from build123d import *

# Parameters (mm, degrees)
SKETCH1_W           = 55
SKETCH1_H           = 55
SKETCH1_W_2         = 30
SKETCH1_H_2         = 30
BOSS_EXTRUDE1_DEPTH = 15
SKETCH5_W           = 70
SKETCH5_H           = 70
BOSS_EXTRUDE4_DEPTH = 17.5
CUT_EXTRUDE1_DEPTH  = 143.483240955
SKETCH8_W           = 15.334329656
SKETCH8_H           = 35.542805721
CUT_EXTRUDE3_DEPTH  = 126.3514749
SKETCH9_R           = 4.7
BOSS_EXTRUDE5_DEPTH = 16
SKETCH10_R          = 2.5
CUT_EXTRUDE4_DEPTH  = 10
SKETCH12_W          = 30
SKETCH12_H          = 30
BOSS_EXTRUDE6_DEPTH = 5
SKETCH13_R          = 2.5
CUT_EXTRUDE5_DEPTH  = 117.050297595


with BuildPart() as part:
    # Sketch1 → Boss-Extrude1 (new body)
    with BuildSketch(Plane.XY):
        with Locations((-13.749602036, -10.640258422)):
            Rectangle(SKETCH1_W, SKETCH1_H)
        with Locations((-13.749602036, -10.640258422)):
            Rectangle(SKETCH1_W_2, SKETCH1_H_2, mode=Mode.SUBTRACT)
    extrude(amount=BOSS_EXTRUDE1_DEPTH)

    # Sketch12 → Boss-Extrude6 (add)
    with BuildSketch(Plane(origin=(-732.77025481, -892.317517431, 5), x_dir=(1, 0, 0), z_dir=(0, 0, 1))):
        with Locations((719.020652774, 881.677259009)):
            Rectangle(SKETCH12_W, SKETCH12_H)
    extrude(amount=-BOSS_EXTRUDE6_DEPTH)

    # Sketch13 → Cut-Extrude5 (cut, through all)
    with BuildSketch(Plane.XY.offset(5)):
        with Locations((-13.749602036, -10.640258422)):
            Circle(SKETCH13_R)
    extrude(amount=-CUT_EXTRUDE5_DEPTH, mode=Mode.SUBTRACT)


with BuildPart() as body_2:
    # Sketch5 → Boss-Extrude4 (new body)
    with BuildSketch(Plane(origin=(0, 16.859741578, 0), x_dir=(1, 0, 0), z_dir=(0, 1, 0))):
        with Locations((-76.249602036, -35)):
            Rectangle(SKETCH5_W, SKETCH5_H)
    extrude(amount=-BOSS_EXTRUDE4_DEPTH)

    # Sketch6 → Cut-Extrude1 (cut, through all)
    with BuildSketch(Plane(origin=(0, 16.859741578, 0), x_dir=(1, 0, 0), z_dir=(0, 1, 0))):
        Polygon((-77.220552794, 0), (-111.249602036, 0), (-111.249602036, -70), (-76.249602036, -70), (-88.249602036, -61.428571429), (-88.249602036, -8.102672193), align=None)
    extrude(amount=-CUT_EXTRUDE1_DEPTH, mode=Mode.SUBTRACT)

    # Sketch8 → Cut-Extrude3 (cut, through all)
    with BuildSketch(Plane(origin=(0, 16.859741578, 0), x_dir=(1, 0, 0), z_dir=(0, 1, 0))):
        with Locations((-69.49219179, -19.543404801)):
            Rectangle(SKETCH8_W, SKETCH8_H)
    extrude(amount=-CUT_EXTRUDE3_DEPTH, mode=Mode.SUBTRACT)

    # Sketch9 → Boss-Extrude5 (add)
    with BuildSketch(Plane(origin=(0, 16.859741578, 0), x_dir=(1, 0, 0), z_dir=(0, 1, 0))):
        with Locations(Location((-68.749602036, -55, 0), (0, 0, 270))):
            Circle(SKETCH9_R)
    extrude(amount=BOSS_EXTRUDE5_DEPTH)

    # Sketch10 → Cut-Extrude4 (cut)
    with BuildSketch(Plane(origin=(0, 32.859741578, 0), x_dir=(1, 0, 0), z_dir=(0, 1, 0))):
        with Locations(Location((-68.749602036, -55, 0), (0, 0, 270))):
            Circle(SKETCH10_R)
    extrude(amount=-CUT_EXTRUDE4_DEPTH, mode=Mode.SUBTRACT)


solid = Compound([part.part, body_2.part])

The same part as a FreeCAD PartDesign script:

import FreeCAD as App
import Part
import Sketcher
Q = App.Units.Quantity

doc = App.newDocument("Part")
body = doc.addObject("PartDesign::Body", "Body")

sketch1 = body.newObject("Sketcher::SketchObject", "Sketch")
sketch1.AttachmentSupport = (doc.getObject("XY_Plane"), [""])
sketch1.MapMode = "FlatFace"
sketch1.addGeometry([
    Part.LineSegment(App.Vector(-41, 17, 0), App.Vector(-41, -38, 0)),
    Part.LineSegment(App.Vector(-41, -38, 0), App.Vector(14, -38, 0)),
    Part.LineSegment(App.Vector(14, -38, 0), App.Vector(14, 17, 0)),
    Part.LineSegment(App.Vector(14, 17, 0), App.Vector(-41, 17, 0)),
    Part.LineSegment(App.Vector(1, -26, 0), App.Vector(-29, -26, 0)),
    Part.LineSegment(App.Vector(-29, -26, 0), App.Vector(-29, 4, 0)),
    Part.LineSegment(App.Vector(-29, 4, 0), App.Vector(1, 4, 0)),
    Part.LineSegment(App.Vector(1, 4, 0), App.Vector(1, -26, 0)),
], False)
sketch1.addConstraint([
    Sketcher.Constraint("Coincident", 0, 2, 1, 1),
    Sketcher.Constraint("Coincident", 1, 2, 2, 1),
    Sketcher.Constraint("Coincident", 2, 2, 3, 1),
    Sketcher.Constraint("Coincident", 3, 2, 0, 1),
    Sketcher.Constraint("Coincident", 4, 2, 5, 1),
    Sketcher.Constraint("Coincident", 5, 2, 6, 1),
    Sketcher.Constraint("Coincident", 6, 2, 7, 1),
    Sketcher.Constraint("Coincident", 7, 2, 4, 1),
    Sketcher.Constraint("Vertical", 0),
    Sketcher.Constraint("Horizontal", 1),
    Sketcher.Constraint("Vertical", 2),
    Sketcher.Constraint("Horizontal", 3),
    Sketcher.Constraint("Horizontal", 4),
    Sketcher.Constraint("Vertical", 5),
    Sketcher.Constraint("Horizontal", 6),
    Sketcher.Constraint("Vertical", 7),
    Sketcher.Constraint("Equal", 3, 0),
    Sketcher.Constraint("Equal", 6, 5),
    Sketcher.Constraint("DistanceX", 1, 1, 1, 2, Q("55 mm")),
    Sketcher.Constraint("DistanceX", 4, 2, 4, 1, Q("30 mm")),
    Sketcher.Constraint("DistanceX", 0, 2, 4, 2, Q("12.5 mm")),
    Sketcher.Constraint("DistanceY", 0, 2, 4, 2, Q("12.5 mm")),
    Sketcher.Constraint("DistanceY", 0, 2, -1, 1, Q("38.140258 mm")),
    Sketcher.Constraint("DistanceX", 0, 2, -1, 1, Q("41.249602 mm")),
])
pad1 = body.newObject("PartDesign::Pad", "Pad")
pad1.Profile = sketch1
pad1.Length = 15

sketch2 = body.newObject("Sketcher::SketchObject", "Sketch001")
sketch2.AttachmentSupport = (doc.getObject("XY_Plane"), [""])
sketch2.MapMode = "FlatFace"
sketch2.AttachmentOffset = App.Placement(App.Vector(0, 0, 5), App.Rotation())
sketch2.addGeometry([
    Part.LineSegment(App.Vector(-29, 4, 0), App.Vector(-29, -26, 0)),
    Part.LineSegment(App.Vector(-29, -26, 0), App.Vector(1, -26, 0)),
    Part.LineSegment(App.Vector(1, -26, 0), App.Vector(1, 4, 0)),
    Part.LineSegment(App.Vector(1, 4, 0), App.Vector(-29, 4, 0)),
], False)
sketch2.addConstraint([
    Sketcher.Constraint("Coincident", 0, 2, 1, 1),
    Sketcher.Constraint("Coincident", 1, 2, 2, 1),
    Sketcher.Constraint("Coincident", 2, 2, 3, 1),
    Sketcher.Constraint("Coincident", 3, 2, 0, 1),
    Sketcher.Constraint("Vertical", 0),
    Sketcher.Constraint("Horizontal", 1),
    Sketcher.Constraint("Vertical", 2),
    Sketcher.Constraint("Horizontal", 3),
    Sketcher.Constraint("Equal", 3, 0),
    Sketcher.Constraint("DistanceX", 1, 1, 1, 2, Q("30 mm")),
    Sketcher.Constraint("DistanceY", 0, 2, -1, 1, Q("25.640258 mm")),
    Sketcher.Constraint("DistanceX", 0, 2, -1, 1, Q("28.749602 mm")),
])
pad2 = body.newObject("PartDesign::Pad", "Pad001")
pad2.Profile = sketch2
pad2.Length = 5
pad2.Reversed = True

sketch3 = body.newObject("Sketcher::SketchObject", "Sketch002")
sketch3.AttachmentSupport = (doc.getObject("XY_Plane"), [""])
sketch3.MapMode = "FlatFace"
sketch3.AttachmentOffset = App.Placement(App.Vector(0, 0, 5), App.Rotation())
sketch3.addGeometry(Part.Circle(App.Vector(-13.7, -10.6, 0), App.Vector(0, 0, 1), 2.5), False)
sketch3.addConstraint([
    Sketcher.Constraint("Diameter", 0, Q("5 mm")),
    Sketcher.Constraint("DistanceY", 0, 3, -1, 1, Q("10.640258 mm")),
    Sketcher.Constraint("DistanceX", 0, 3, -1, 1, Q("13.749602 mm")),
])
pocket1 = body.newObject("PartDesign::Pocket", "Pocket")
pocket1.Profile = sketch3
pocket1.Type = "ThroughAll"
body2 = doc.addObject("PartDesign::Body", "Body001")

sketch4 = body2.newObject("Sketcher::SketchObject", "Sketch003")
sketch4.AttachmentSupport = (doc.getObject("XZ_Plane001"), [""])
sketch4.MapMode = "FlatFace"
sketch4.AttachmentOffset = App.Placement(App.Vector(0, 0, -16.859742), App.Rotation())
sketch4.addGeometry([
    Part.LineSegment(App.Vector(-111, 0, 0), App.Vector(-111, 70, 0)),
    Part.LineSegment(App.Vector(-111, 70, 0), App.Vector(-41, 70, 0)),
    Part.LineSegment(App.Vector(-41, 70, 0), App.Vector(-41, 0, 0)),
    Part.LineSegment(App.Vector(-41, 0, 0), App.Vector(-111, 0, 0)),
], False)
sketch4.addConstraint([
    Sketcher.Constraint("Coincident", 0, 2, 1, 1),
    Sketcher.Constraint("Coincident", 1, 2, 2, 1),
    Sketcher.Constraint("Coincident", 2, 2, 3, 1),
    Sketcher.Constraint("Coincident", 3, 2, 0, 1),
    Sketcher.Constraint("Vertical", 0),
    Sketcher.Constraint("Horizontal", 1),
    Sketcher.Constraint("Vertical", 2),
    Sketcher.Constraint("Horizontal", 3),
    Sketcher.Constraint("PointOnObject", 2, 2, -1),
    Sketcher.Constraint("Equal", 3, 0),
    Sketcher.Constraint("DistanceX", 1, 1, 1, 2, Q("70 mm")),
    Sketcher.Constraint("DistanceX", 0, 2, -1, 1, Q("111.249602 mm")),
])
pad3 = body2.newObject("PartDesign::Pad", "Pad002")
pad3.Profile = sketch4
pad3.Length = 17.5

sketch5 = body2.newObject("Sketcher::SketchObject", "Sketch004")
sketch5.AttachmentSupport = (doc.getObject("XZ_Plane001"), [""])
sketch5.MapMode = "FlatFace"
sketch5.AttachmentOffset = App.Placement(App.Vector(0, 0, -16.859742), App.Rotation())
sketch5.addGeometry([
    Part.LineSegment(App.Vector(-77, 0, 0), App.Vector(-111, 0, 0)),
    Part.LineSegment(App.Vector(-111, 0, 0), App.Vector(-111, 70, 0)),
    Part.LineSegment(App.Vector(-111, 70, 0), App.Vector(-76, 70, 0)),
    Part.LineSegment(App.Vector(-76, 70, 0), App.Vector(-88, 61, 0)),
    Part.LineSegment(App.Vector(-88, 61, 0), App.Vector(-88, 8, 0)),
    Part.LineSegment(App.Vector(-88, 8, 0), App.Vector(-77, 0, 0)),
], False)
sketch5.addConstraint([
    Sketcher.Constraint("Coincident", 0, 2, 1, 1),
    Sketcher.Constraint("Coincident", 1, 2, 2, 1),
    Sketcher.Constraint("Coincident", 2, 2, 3, 1),
    Sketcher.Constraint("Coincident", 3, 2, 4, 1),
    Sketcher.Constraint("Coincident", 4, 2, 5, 1),
    Sketcher.Constraint("Coincident", 5, 2, 0, 1),
    Sketcher.Constraint("Horizontal", 0),
    Sketcher.Constraint("Vertical", 1),
    Sketcher.Constraint("Horizontal", 2),
    Sketcher.Constraint("Vertical", 4),
    Sketcher.Constraint("PointOnObject", 0, 2, -1),
    Sketcher.Constraint("DistanceX", 2, 1, 2, 2, Q("35 mm")),
    Sketcher.Constraint("DistanceY", 1, 1, 1, 2, Q("70 mm")),
    Sketcher.Constraint("DistanceX", 3, 2, 2, 2, Q("12 mm")),
    Sketcher.Constraint("DistanceY", 4, 2, 4, 1, Q("53.325899 mm")),
    Sketcher.Constraint("DistanceX", 0, 2, 0, 1, Q("34.029049 mm")),
    Sketcher.Constraint("Distance", 5, Q("13.685511 mm")),
    Sketcher.Constraint("DistanceX", 0, 2, -1, 1, Q("111.249602 mm")),
])
pocket2 = body2.newObject("PartDesign::Pocket", "Pocket001")
pocket2.Profile = sketch5
pocket2.Type = "ThroughAll"
pocket2.Reversed = True

sketch6 = body2.newObject("Sketcher::SketchObject", "Sketch005")
sketch6.AttachmentSupport = (doc.getObject("XZ_Plane001"), [""])
sketch6.MapMode = "FlatFace"
sketch6.AttachmentOffset = App.Placement(App.Vector(0, 0, -16.859742), App.Rotation())
sketch6.addGeometry([
    Part.LineSegment(App.Vector(-77, 2, 0), App.Vector(-77, 37, 0)),
    Part.LineSegment(App.Vector(-77, 37, 0), App.Vector(-62, 37, 0)),
    Part.LineSegment(App.Vector(-62, 37, 0), App.Vector(-62, 2, 0)),
    Part.LineSegment(App.Vector(-62, 2, 0), App.Vector(-77, 2, 0)),
], False)
sketch6.addConstraint([
    Sketcher.Constraint("Coincident", 0, 2, 1, 1),
    Sketcher.Constraint("Coincident", 1, 2, 2, 1),
    Sketcher.Constraint("Coincident", 2, 2, 3, 1),
    Sketcher.Constraint("Coincident", 3, 2, 0, 1),
    Sketcher.Constraint("Vertical", 0),
    Sketcher.Constraint("Horizontal", 1),
    Sketcher.Constraint("Vertical", 2),
    Sketcher.Constraint("Horizontal", 3),
    Sketcher.Constraint("DistanceY", -1, 1, 2, 2, Q("1.772002 mm")),
    Sketcher.Constraint("DistanceX", 1, 1, 1, 2, Q("15.33433 mm")),
    Sketcher.Constraint("DistanceY", 0, 1, 0, 2, Q("35.542806 mm")),
    Sketcher.Constraint("DistanceX", 0, 2, -1, 1, Q("77.159357 mm")),
])
pocket3 = body2.newObject("PartDesign::Pocket", "Pocket002")
pocket3.Profile = sketch6
pocket3.Type = "ThroughAll"
pocket3.Reversed = True

sketch7 = body2.newObject("Sketcher::SketchObject", "Sketch006")
sketch7.AttachmentSupport = (doc.getObject("XZ_Plane001"), [""])
sketch7.MapMode = "FlatFace"
sketch7.AttachmentOffset = App.Placement(App.Vector(0, 0, -16.859742), App.Rotation())
sketch7.addGeometry(Part.Circle(App.Vector(-68.7, 55, 0), App.Vector(0, 0, 1), 4.7), False)
sketch7.addConstraint([
    Sketcher.Constraint("Diameter", 0, Q("9.4 mm")),
    Sketcher.Constraint("DistanceY", -1, 1, 0, 3, Q("55 mm")),
    Sketcher.Constraint("DistanceX", 0, 3, -1, 1, Q("68.749602 mm")),
])
pad4 = body2.newObject("PartDesign::Pad", "Pad003")
pad4.Profile = sketch7
pad4.Length = 16
pad4.Reversed = True

sketch8 = body2.newObject("Sketcher::SketchObject", "Sketch007")
sketch8.AttachmentSupport = (doc.getObject("XZ_Plane001"), [""])
sketch8.MapMode = "FlatFace"
sketch8.AttachmentOffset = App.Placement(App.Vector(0, 0, -32.859742), App.Rotation())
sketch8.addGeometry(Part.Circle(App.Vector(-68.7, 55, 0), App.Vector(0, 0, 1), 2.5), False)
sketch8.addConstraint([
    Sketcher.Constraint("Diameter", 0, Q("5 mm")),
    Sketcher.Constraint("DistanceY", -1, 1, 0, 3, Q("55 mm")),
    Sketcher.Constraint("DistanceX", 0, 3, -1, 1, Q("68.749602 mm")),
])
pocket4 = body2.newObject("PartDesign::Pocket", "Pocket003")
pocket4.Profile = sketch8
pocket4.Length = 10
pocket4.Reversed = True

doc.recompute()
